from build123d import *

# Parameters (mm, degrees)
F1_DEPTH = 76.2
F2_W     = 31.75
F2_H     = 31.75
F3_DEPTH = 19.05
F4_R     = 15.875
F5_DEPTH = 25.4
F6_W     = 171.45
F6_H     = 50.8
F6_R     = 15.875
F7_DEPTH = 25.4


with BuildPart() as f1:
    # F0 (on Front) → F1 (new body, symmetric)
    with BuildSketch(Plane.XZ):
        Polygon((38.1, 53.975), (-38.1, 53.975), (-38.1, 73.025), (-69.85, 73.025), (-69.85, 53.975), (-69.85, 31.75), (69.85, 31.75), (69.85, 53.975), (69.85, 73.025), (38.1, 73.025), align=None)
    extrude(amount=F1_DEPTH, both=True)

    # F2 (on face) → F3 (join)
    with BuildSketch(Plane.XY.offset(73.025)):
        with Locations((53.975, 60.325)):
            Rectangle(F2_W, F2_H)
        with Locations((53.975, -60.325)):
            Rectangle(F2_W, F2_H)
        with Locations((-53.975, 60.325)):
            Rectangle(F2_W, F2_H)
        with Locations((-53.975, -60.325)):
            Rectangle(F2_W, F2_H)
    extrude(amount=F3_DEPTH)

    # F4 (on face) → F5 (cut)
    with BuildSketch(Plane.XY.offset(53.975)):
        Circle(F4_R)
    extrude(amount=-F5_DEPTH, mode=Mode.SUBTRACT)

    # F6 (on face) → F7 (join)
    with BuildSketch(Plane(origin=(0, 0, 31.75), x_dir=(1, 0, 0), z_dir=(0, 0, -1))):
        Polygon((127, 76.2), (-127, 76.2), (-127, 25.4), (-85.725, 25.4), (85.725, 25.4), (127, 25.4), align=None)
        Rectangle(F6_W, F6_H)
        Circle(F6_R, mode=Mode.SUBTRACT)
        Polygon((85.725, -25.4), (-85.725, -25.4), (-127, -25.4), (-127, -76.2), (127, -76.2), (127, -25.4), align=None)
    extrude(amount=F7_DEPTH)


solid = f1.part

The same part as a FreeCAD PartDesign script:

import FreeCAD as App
import Part
import Sketcher
from FreeCAD import Vector
Q = App.Units.Quantity


def add_polygon(sketch, points):
    """Adds a closed chain of lines whose ends are joined by coincident constraints."""
    first, n = sketch.GeometryCount, len(points)
    for a, b in zip(points, points[1:] + points[:1]):
        sketch.addGeometry(Part.LineSegment(App.Vector(*a, 0), App.Vector(*b, 0)), False)
    for i in range(n):
        sketch.addConstraint(Sketcher.Constraint("Coincident", first + i, 2, first + (i + 1) % n, 1))

doc = App.newDocument("Part")
body = doc.addObject("PartDesign::Body", "Body")

# Sketch on XZ plane
sketch1 = body.newObject("Sketcher::SketchObject", "Sketch")
sketch1.AttachmentSupport = (doc.getObject("XZ_Plane"), [""])
sketch1.MapMode = "FlatFace"
add_polygon(sketch1, [(38, 54), (-38, 54), (-38, 73), (-70, 73), (-70, 32), (70, 32), (70, 73), (38, 73)])  # lines 0-7
sketch1.addConstraint([
    Sketcher.Constraint("Horizontal", 0),
    Sketcher.Constraint("Vertical", 1),
    Sketcher.Constraint("Horizontal", 2),
    Sketcher.Constraint("Vertical", 3),
    Sketcher.Constraint("Horizontal", 4),
    Sketcher.Constraint("Vertical", 5),
    Sketcher.Constraint("Horizontal", 6),
    Sketcher.Constraint("Vertical", 7),
    Sketcher.Constraint("Symmetric", 2, 2, 5, 2, -2),
    Sketcher.Constraint("Equal", 2, 6),
    Sketcher.Constraint("DistanceX", 0, 2, 0, 1, Q("3 in")),
    Sketcher.Constraint("DistanceX", 4, 1, 4, 2, Q("5.5 in")),
    Sketcher.Constraint("DistanceY", 1, 1, 1, 2, Q("0.75 in")),
    Sketcher.Constraint("DistanceY", 3, 2, 3, 1, Q("1.625 in")),
    Sketcher.Constraint("DistanceY", -1, 1, 3, 2, Q("1.25 in")),
])
pad1 = body.newObject("PartDesign::Pad", "Pad")
pad1.Profile = sketch1
pad1.Length = Q("6 in")
pad1.Midplane = True

# Sketch on XY plane
sketch2 = body.newObject("Sketcher::SketchObject", "Sketch001")
sketch2.AttachmentSupport = (doc.getObject("XY_Plane"), [""])
sketch2.MapMode = "FlatFace"
sketch2.AttachmentOffset = App.Placement(Vector(0, 0, 2.875 * 25.4), App.Rotation())
add_polygon(sketch2, [(38, 76), (38, 44), (70, 44), (70, 76)])  # lines 0-3
add_polygon(sketch2, [(38, -44), (38, -76), (70, -76), (70, -44)])  # lines 4-7
add_polygon(sketch2, [(-70, 76), (-70, 44), (-38, 44), (-38, 76)])  # lines 8-11
add_polygon(sketch2, [(-70, -44), (-70, -76), (-38, -76), (-38, -44)])  # lines 12-15
sketch2.addConstraint([
    Sketcher.Constraint("Vertical", 0),
    Sketcher.Constraint("Horizontal", 1),
    Sketcher.Constraint("Vertical", 2),
    Sketcher.Constraint("Horizontal", 3),
    Sketcher.Constraint("Vertical", 4),
    Sketcher.Constraint("Horizontal", 5),
    Sketcher.Constraint("Vertical", 6),
    Sketcher.Constraint("Horizontal", 7),
    Sketcher.Constraint("Vertical", 8),
    Sketcher.Constraint("Horizontal", 9),
    Sketcher.Constraint("Vertical", 10),
    Sketcher.Constraint("Horizontal", 11),
    Sketcher.Constraint("Vertical", 12),
    Sketcher.Constraint("Horizontal", 13),
    Sketcher.Constraint("Vertical", 14),
    Sketcher.Constraint("Horizontal", 15),
    Sketcher.Constraint("Symmetric", 6, 2, 8, 2, -1, 1),
    Sketcher.Constraint("Symmetric", 4, 2, 10, 2, -1, 1),
    Sketcher.Constraint("Symmetric", 2, 2, 12, 2, -1, 1),
    Sketcher.Constraint("Symmetric", 0, 2, 14, 2, -1, 1),
    Sketcher.Constraint("Symmetric", 1, 2, 8, 2, -2),
    Sketcher.Constraint("Symmetric", 3, 2, 10, 2, -2),
    Sketcher.Constraint("Equal", 15, 0),
    Sketcher.Constraint("DistanceY", -1, 1, 2, 2, Q("3 in")),
    Sketcher.Constraint("DistanceX", 9, 2, 0, 2, Q("3 in")),
    Sketcher.Constraint("DistanceX", 1, 1, 1, 2, Q("1.25 in")),
])
pad2 = body.newObject("PartDesign::Pad", "Pad001")
pad2.Profile = sketch2
pad2.Length = Q("0.75 in")

# Sketch on XY plane
sketch3 = body.newObject("Sketcher::SketchObject", "Sketch002")
sketch3.AttachmentSupport = (doc.getObject("XY_Plane"), [""])
sketch3.MapMode = "FlatFace"
sketch3.AttachmentOffset = App.Placement(Vector(0, 0, 2.125 * 25.4), App.Rotation())
sketch3.addGeometry(Part.Circle(Vector(0, 0, 0), Vector(0, 0, 1), 16), False)
sketch3.addConstraint([
    Sketcher.Constraint("Coincident", 0, 3, -1, 1),
    Sketcher.Constraint("Diameter", 0, Q("1.25 in")),
])
pocket1 = body.newObject("PartDesign::Pocket", "Pocket")
pocket1.Profile = sketch3
pocket1.Length = Q("1 in")

# Sketch on XY plane
sketch4 = body.newObject("Sketcher::SketchObject", "Sketch003")
sketch4.AttachmentSupport = (doc.getObject("XY_Plane"), [""])
sketch4.MapMode = "FlatFace"
sketch4.AttachmentOffset = App.Placement(Vector(0, 0, 1.25 * 25.4), App.Rotation())
add_polygon(sketch4, [(127, -76), (-127, -76), (-127, -25), (-86, -25), (-86, 25), (-127, 25), (-127, 76), (127, 76), (127, 25), (86, 25), (86, -25), (127, -25)])  # lines 0-11
sketch4.addGeometry(Part.Circle(Vector(0, 0, 0), Vector(0, 0, 1), 16), False)  # 12
sketch4.addConstraint([
    Sketcher.Constraint("Horizontal", 0),
    Sketcher.Constraint("Vertical", 1),
    Sketcher.Constraint("Horizontal", 2),
    Sketcher.Constraint("Vertical", 3),
    Sketcher.Constraint("Horizontal", 4),
    Sketcher.Constraint("Vertical", 5),
    Sketcher.Constraint("Horizontal", 6),
    Sketcher.Constraint("Vertical", 7),
    Sketcher.Constraint("Horizontal", 8),
    Sketcher.Constraint("Vertical", 9),
    Sketcher.Constraint("Horizontal", 10),
    Sketcher.Constraint("Vertical", 11),
    Sketcher.Constraint("Coincident", 12, 3, -1, 1),
    Sketcher.Constraint("Symmetric", 0, 2, 6, 2, -1, 1),
    Sketcher.Constraint("Symmetric", 2, 2, 8, 2, -1, 1),
    Sketcher.Constraint("Symmetric", 4, 2, 10, 2, -1, 1),
    Sketcher.Constraint("Symmetric", 4, 2, 7, 2, -2),
    Sketcher.Constraint("Equal", 1, 3),
    Sketcher.Constraint("Diameter", 12, Q("1.25 in")),
    Sketcher.Constraint("DistanceX", 0, 2, 0, 1, Q("10 in")),
    Sketcher.Constraint("DistanceY", 1, 1, 1, 2, Q("2 in")),
    Sketcher.Constraint("DistanceX", 2, 1, 2, 2, Q("1.625 in")),
])
pad3 = body.newObject("PartDesign::Pad", "Pad002")
pad3.Profile = sketch4
pad3.Length = Q("1 in")
pad3.Reversed = True

doc.recompute()
